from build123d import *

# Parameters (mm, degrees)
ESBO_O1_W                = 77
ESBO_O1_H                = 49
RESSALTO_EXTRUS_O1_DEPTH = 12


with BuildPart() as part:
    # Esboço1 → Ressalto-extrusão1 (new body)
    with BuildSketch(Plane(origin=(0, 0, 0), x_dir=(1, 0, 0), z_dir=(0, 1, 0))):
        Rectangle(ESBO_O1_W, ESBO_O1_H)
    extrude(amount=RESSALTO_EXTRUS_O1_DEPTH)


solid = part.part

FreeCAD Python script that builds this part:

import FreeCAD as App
import Part
import Sketcher
from FreeCAD import Vector

doc = App.newDocument("Part")
body = doc.addObject("PartDesign::Body", "Body")

sketch1 = body.newObject("Sketcher::SketchObject", "Sketch")
sketch1.AttachmentSupport = (doc.getObject("XZ_Plane"), [""])
sketch1.MapMode = "FlatFace"
sketch1.addGeometry([
    Part.LineSegment(Vector(-38, -24, 0), Vector(-38, 24, 0)),
    Part.LineSegment(Vector(-38, 24, 0), Vector(38, 24, 0)),
    Part.LineSegment(Vector(38, 24, 0), Vector(38, -24, 0)),
    Part.LineSegment(Vector(38, -24, 0), Vector(-38, -24, 0)),
], False)
sketch1.addConstraint([
    Sketcher.Constraint("Coincident", 0, 2, 1, 1),
    Sketcher.Constraint("Coincident", 1, 2, 2, 1),
    Sketcher.Constraint("Coincident", 2, 2, 3, 1),
    Sketcher.Constraint("Coincident", 3, 2, 0, 1),
    Sketcher.Constraint("Vertical", 0),
    Sketcher.Constraint("Horizontal", 1),
    Sketcher.Constraint("Vertical", 2),
    Sketcher.Constraint("Horizontal", 3),
    Sketcher.Constraint("Symmetric", 0, 2, 2, 2, -1, 1),
    Sketcher.Constraint("DistanceX", 1, 1, 1, 2, 77.0),
    Sketcher.Constraint("DistanceY", 0, 1, 0, 2, 49.0),
])
pad1 = body.newObject("PartDesign::Pad", "Pad")
pad1.Profile = sketch1
pad1.Length = 12
pad1.Reversed = True

doc.recompute()
